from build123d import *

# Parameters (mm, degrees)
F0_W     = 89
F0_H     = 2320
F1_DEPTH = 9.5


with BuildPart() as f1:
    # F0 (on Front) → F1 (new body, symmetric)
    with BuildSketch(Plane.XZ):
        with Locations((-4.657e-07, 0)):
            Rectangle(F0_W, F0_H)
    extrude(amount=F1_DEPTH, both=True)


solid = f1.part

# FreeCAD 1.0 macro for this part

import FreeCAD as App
import Part
import Sketcher
from FreeCAD import Vector
Q = App.Units.Quantity


def add_polygon(sketch, points):
    """Adds a closed chain of lines whose ends are joined by coincident constraints."""
    first, n = sketch.GeometryCount, len(points)
    for a, b in zip(points, points[1:] + points[:1]):
        sketch.addGeometry(Part.LineSegment(App.Vector(*a, 0), App.Vector(*b, 0)), False)
    for i in range(n):
        sketch.addConstraint(Sketcher.Constraint("Coincident", first + i, 2, first + (i + 1) % n, 1))

doc = App.newDocument("Part")
body = doc.addObject("PartDesign::Body", "Body")

# Sketch on XZ plane
sketch1 = body.newObject("Sketcher::SketchObject", "Sketch")
sketch1.AttachmentSupport = (doc.getObject("XZ_Plane"), [""])
sketch1.MapMode = "FlatFace"
add_polygon(sketch1, [(-44, 1160), (-44, -1160), (44, -1160), (44, 1160)])  # lines 0-3
sketch1.addConstraint(Sketcher.Constraint("Vertical", 0))
sketch1.addConstraint(Sketcher.Constraint("Horizontal", 1))
sketch1.addConstraint(Sketcher.Constraint("Vertical", 2))
sketch1.addConstraint(Sketcher.Constraint("Horizontal", 3))
sketch1.addConstraint(Sketcher.Constraint("Symmetric", 0, 2, 2, 2, -1, 1))
sketch1.addConstraint(Sketcher.Constraint("DistanceX", 1, 1, 1, 2, Q("89 mm")))
sketch1.addConstraint(Sketcher.Constraint("DistanceY", 0, 2, 0, 1, Q("2320 mm")))
pad1 = body.newObject("PartDesign::Pad", "Pad")
pad1.Profile = sketch1
pad1.Length = 19
pad1.Midplane = True

doc.recompute()
